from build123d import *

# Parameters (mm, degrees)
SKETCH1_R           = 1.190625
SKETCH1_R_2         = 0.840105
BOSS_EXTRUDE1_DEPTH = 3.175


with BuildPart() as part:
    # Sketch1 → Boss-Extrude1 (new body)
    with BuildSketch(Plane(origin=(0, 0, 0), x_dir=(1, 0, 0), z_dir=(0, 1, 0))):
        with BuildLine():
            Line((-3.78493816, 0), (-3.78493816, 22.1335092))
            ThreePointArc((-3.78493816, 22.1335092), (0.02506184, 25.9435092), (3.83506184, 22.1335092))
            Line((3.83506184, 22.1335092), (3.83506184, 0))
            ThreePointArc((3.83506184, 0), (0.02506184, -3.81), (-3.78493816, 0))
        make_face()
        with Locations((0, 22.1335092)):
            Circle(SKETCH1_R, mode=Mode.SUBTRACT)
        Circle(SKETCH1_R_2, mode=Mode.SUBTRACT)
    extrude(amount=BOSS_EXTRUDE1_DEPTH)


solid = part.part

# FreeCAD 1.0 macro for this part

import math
import FreeCAD as App
import Part
import Sketcher
Q = App.Units.Quantity

doc = App.newDocument("Part")
body = doc.addObject("PartDesign::Body", "Body")

# Sketch on XZ plane
sketch1 = doc.addObject("Sketcher::SketchObject", "Sketch")
body.addObject(sketch1)
sketch1.AttachmentSupport = (doc.XZ_Plane, [""])
sketch1.MapMode = "FlatFace"
sketch1.addGeometry([
    Part.LineSegment(App.Vector(-3.8, -22.1, 0), App.Vector(-3.8, 0, 0)),  # 0
    Part.ArcOfCircle(Part.Circle(App.Vector(0, 0, 0), App.Vector(0, 0, 1), 3.8), math.radians(0), math.radians(180)),  # 1
    Part.LineSegment(App.Vector(3.8, 0, 0), App.Vector(3.8, -22.1, 0)),  # 2
    Part.ArcOfCircle(Part.Circle(App.Vector(0, -22.1, 0), App.Vector(0, 0, 1), 3.8), math.radians(180), math.radians(360)),  # 3
    Part.Circle(App.Vector(0, 0, 0), App.Vector(0, 0, 1), 0.8),  # 4
    Part.Circle(App.Vector(0, -22.1, 0), App.Vector(0, 0, 1), 1.2),  # 5
], False)
sketch1.addConstraint([
    Sketcher.Constraint("Tangent", 0, 2, 1, 2),
    Sketcher.Constraint("Tangent", 1, 1, 2, 1),
    Sketcher.Constraint("Tangent", 2, 2, 3, 2),
    Sketcher.Constraint("Tangent", 3, 1, 0, 1),
    Sketcher.Constraint("Vertical", 0),
    Sketcher.Constraint("Vertical", 2),
    Sketcher.Constraint("Coincident", 4, 3, -1, 1),
    Sketcher.Constraint("PointOnObject", 1, 3, -1),
    Sketcher.Constraint("PointOnObject", 5, 3, -2),
    Sketcher.Constraint("Horizontal", 3, 3, 5, 3),
    Sketcher.Constraint("Radius", 1, Q("0.15 in")),
    Sketcher.Constraint("Diameter", 5, Q("0.09375 in")),
    Sketcher.Constraint("Diameter", 4, Q("1.68021 mm")),
    Sketcher.Constraint("DistanceY", 0, 1, 0, 2, Q("22.133509 mm")),
    Sketcher.Constraint("DistanceX", -1, 1, 1, 3, Q("0.025062 mm")),
])
pad1 = doc.addObject("PartDesign::Pad", "Pad")
body.addObject(pad1)
pad1.Profile = sketch1
pad1.Length = Q("0.125 in")
pad1.Reversed = True

doc.recompute()
